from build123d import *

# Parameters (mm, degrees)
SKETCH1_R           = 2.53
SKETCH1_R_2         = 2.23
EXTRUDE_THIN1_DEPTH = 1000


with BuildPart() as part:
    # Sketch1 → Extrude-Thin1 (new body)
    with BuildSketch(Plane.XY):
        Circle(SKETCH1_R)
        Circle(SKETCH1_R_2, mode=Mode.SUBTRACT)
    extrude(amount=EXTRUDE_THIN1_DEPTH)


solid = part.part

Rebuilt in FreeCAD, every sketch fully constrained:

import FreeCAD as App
import Part
import Sketcher
Q = App.Units.Quantity

doc = App.newDocument("Part")
body = doc.addObject("PartDesign::Body", "Body")

sketch1 = doc.addObject("Sketcher::SketchObject", "Sketch")
body.addObject(sketch1)
sketch1.AttachmentSupport = (doc.XY_Plane, [""])
sketch1.MapMode = "FlatFace"
sketch1.addGeometry(Part.Circle(App.Vector(0, 0, 0), App.Vector(0, 0, 1), 2.53), False)
sketch1.addGeometry(Part.Circle(App.Vector(0, 0, 0), App.Vector(0, 0, 1), 2.23), False)
sketch1.addConstraint(Sketcher.Constraint("Coincident", 0, 3, -1, 1))
sketch1.addConstraint(Sketcher.Constraint("Coincident", 1, 3, -1, 1))
sketch1.addConstraint(Sketcher.Constraint("Diameter", 0, Q("5.06 mm")))
sketch1.addConstraint(Sketcher.Constraint("Diameter", 1, Q("4.46 mm")))
pad1 = doc.addObject("PartDesign::Pad", "Pad")
body.addObject(pad1)
pad1.Profile = sketch1
pad1.Length = 1000

doc.recompute()
